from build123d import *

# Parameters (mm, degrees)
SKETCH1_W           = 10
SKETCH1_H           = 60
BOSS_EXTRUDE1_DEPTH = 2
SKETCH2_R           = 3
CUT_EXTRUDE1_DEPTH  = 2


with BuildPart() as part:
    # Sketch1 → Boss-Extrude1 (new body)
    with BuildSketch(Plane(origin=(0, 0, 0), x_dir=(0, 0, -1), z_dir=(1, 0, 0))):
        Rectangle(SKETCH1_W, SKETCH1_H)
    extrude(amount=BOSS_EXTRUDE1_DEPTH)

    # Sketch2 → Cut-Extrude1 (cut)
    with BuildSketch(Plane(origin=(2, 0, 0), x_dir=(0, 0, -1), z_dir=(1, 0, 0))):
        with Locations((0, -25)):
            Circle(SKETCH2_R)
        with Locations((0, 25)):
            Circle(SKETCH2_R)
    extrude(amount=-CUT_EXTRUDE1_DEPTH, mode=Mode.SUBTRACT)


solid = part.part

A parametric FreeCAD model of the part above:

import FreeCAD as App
import Part
import Sketcher
Q = App.Units.Quantity

doc = App.newDocument("Part")
body = doc.addObject("PartDesign::Body", "Body")

sketch1 = body.newObject("Sketcher::SketchObject", "Sketch")
sketch1.AttachmentSupport = (doc.getObject("YZ_Plane"), [""])
sketch1.MapMode = "FlatFace"
sketch1.addGeometry(Part.LineSegment(App.Vector(30, 5, 0), App.Vector(-30, 5, 0)), False)
sketch1.addGeometry(Part.LineSegment(App.Vector(-30, 5, 0), App.Vector(-30, -5, 0)), False)
sketch1.addGeometry(Part.LineSegment(App.Vector(-30, -5, 0), App.Vector(30, -5, 0)), False)
sketch1.addGeometry(Part.LineSegment(App.Vector(30, -5, 0), App.Vector(30, 5, 0)), False)
sketch1.addConstraint(Sketcher.Constraint("Coincident", 0, 2, 1, 1))
sketch1.addConstraint(Sketcher.Constraint("Coincident", 1, 2, 2, 1))
sketch1.addConstraint(Sketcher.Constraint("Coincident", 2, 2, 3, 1))
sketch1.addConstraint(Sketcher.Constraint("Coincident", 3, 2, 0, 1))
sketch1.addConstraint(Sketcher.Constraint("Horizontal", 0))
sketch1.addConstraint(Sketcher.Constraint("Vertical", 1))
sketch1.addConstraint(Sketcher.Constraint("Horizontal", 2))
sketch1.addConstraint(Sketcher.Constraint("Vertical", 3))
sketch1.addConstraint(Sketcher.Constraint("Symmetric", 0, 2, 2, 2, -1, 1))
sketch1.addConstraint(Sketcher.Constraint("DistanceX", 0, 2, 0, 1, Q("60 mm")))
sketch1.addConstraint(Sketcher.Constraint("DistanceY", 1, 2, 1, 1, Q("10 mm")))
pad1 = body.newObject("PartDesign::Pad", "Pad")
pad1.Profile = sketch1
pad1.Length = 2

sketch2 = body.newObject("Sketcher::SketchObject", "Sketch001")
sketch2.AttachmentSupport = (doc.getObject("YZ_Plane"), [""])
sketch2.MapMode = "FlatFace"
sketch2.AttachmentOffset = App.Placement(App.Vector(0, 0, 2), App.Rotation())
sketch2.addGeometry(Part.Circle(App.Vector(-25, 0, 0), App.Vector(0, 0, 1), 3), False)
sketch2.addGeometry(Part.Circle(App.Vector(25, 0, 0), App.Vector(0, 0, 1), 3), False)
sketch2.addConstraint(Sketcher.Constraint("Equal", 0, 1))
sketch2.addConstraint(Sketcher.Constraint("Symmetric", 0, 3, 1, 3, -1, 1))
sketch2.addConstraint(Sketcher.Constraint("PointOnObject", 0, 3, -1))
sketch2.addConstraint(Sketcher.Constraint("Diameter", 0, Q("6 mm")))
sketch2.addConstraint(Sketcher.Constraint("DistanceX", 0, 3, -1, 1, Q("25 mm")))
pocket1 = body.newObject("PartDesign::Pocket", "Pocket")
pocket1.Profile = sketch2
pocket1.Length = 2

doc.recompute()
